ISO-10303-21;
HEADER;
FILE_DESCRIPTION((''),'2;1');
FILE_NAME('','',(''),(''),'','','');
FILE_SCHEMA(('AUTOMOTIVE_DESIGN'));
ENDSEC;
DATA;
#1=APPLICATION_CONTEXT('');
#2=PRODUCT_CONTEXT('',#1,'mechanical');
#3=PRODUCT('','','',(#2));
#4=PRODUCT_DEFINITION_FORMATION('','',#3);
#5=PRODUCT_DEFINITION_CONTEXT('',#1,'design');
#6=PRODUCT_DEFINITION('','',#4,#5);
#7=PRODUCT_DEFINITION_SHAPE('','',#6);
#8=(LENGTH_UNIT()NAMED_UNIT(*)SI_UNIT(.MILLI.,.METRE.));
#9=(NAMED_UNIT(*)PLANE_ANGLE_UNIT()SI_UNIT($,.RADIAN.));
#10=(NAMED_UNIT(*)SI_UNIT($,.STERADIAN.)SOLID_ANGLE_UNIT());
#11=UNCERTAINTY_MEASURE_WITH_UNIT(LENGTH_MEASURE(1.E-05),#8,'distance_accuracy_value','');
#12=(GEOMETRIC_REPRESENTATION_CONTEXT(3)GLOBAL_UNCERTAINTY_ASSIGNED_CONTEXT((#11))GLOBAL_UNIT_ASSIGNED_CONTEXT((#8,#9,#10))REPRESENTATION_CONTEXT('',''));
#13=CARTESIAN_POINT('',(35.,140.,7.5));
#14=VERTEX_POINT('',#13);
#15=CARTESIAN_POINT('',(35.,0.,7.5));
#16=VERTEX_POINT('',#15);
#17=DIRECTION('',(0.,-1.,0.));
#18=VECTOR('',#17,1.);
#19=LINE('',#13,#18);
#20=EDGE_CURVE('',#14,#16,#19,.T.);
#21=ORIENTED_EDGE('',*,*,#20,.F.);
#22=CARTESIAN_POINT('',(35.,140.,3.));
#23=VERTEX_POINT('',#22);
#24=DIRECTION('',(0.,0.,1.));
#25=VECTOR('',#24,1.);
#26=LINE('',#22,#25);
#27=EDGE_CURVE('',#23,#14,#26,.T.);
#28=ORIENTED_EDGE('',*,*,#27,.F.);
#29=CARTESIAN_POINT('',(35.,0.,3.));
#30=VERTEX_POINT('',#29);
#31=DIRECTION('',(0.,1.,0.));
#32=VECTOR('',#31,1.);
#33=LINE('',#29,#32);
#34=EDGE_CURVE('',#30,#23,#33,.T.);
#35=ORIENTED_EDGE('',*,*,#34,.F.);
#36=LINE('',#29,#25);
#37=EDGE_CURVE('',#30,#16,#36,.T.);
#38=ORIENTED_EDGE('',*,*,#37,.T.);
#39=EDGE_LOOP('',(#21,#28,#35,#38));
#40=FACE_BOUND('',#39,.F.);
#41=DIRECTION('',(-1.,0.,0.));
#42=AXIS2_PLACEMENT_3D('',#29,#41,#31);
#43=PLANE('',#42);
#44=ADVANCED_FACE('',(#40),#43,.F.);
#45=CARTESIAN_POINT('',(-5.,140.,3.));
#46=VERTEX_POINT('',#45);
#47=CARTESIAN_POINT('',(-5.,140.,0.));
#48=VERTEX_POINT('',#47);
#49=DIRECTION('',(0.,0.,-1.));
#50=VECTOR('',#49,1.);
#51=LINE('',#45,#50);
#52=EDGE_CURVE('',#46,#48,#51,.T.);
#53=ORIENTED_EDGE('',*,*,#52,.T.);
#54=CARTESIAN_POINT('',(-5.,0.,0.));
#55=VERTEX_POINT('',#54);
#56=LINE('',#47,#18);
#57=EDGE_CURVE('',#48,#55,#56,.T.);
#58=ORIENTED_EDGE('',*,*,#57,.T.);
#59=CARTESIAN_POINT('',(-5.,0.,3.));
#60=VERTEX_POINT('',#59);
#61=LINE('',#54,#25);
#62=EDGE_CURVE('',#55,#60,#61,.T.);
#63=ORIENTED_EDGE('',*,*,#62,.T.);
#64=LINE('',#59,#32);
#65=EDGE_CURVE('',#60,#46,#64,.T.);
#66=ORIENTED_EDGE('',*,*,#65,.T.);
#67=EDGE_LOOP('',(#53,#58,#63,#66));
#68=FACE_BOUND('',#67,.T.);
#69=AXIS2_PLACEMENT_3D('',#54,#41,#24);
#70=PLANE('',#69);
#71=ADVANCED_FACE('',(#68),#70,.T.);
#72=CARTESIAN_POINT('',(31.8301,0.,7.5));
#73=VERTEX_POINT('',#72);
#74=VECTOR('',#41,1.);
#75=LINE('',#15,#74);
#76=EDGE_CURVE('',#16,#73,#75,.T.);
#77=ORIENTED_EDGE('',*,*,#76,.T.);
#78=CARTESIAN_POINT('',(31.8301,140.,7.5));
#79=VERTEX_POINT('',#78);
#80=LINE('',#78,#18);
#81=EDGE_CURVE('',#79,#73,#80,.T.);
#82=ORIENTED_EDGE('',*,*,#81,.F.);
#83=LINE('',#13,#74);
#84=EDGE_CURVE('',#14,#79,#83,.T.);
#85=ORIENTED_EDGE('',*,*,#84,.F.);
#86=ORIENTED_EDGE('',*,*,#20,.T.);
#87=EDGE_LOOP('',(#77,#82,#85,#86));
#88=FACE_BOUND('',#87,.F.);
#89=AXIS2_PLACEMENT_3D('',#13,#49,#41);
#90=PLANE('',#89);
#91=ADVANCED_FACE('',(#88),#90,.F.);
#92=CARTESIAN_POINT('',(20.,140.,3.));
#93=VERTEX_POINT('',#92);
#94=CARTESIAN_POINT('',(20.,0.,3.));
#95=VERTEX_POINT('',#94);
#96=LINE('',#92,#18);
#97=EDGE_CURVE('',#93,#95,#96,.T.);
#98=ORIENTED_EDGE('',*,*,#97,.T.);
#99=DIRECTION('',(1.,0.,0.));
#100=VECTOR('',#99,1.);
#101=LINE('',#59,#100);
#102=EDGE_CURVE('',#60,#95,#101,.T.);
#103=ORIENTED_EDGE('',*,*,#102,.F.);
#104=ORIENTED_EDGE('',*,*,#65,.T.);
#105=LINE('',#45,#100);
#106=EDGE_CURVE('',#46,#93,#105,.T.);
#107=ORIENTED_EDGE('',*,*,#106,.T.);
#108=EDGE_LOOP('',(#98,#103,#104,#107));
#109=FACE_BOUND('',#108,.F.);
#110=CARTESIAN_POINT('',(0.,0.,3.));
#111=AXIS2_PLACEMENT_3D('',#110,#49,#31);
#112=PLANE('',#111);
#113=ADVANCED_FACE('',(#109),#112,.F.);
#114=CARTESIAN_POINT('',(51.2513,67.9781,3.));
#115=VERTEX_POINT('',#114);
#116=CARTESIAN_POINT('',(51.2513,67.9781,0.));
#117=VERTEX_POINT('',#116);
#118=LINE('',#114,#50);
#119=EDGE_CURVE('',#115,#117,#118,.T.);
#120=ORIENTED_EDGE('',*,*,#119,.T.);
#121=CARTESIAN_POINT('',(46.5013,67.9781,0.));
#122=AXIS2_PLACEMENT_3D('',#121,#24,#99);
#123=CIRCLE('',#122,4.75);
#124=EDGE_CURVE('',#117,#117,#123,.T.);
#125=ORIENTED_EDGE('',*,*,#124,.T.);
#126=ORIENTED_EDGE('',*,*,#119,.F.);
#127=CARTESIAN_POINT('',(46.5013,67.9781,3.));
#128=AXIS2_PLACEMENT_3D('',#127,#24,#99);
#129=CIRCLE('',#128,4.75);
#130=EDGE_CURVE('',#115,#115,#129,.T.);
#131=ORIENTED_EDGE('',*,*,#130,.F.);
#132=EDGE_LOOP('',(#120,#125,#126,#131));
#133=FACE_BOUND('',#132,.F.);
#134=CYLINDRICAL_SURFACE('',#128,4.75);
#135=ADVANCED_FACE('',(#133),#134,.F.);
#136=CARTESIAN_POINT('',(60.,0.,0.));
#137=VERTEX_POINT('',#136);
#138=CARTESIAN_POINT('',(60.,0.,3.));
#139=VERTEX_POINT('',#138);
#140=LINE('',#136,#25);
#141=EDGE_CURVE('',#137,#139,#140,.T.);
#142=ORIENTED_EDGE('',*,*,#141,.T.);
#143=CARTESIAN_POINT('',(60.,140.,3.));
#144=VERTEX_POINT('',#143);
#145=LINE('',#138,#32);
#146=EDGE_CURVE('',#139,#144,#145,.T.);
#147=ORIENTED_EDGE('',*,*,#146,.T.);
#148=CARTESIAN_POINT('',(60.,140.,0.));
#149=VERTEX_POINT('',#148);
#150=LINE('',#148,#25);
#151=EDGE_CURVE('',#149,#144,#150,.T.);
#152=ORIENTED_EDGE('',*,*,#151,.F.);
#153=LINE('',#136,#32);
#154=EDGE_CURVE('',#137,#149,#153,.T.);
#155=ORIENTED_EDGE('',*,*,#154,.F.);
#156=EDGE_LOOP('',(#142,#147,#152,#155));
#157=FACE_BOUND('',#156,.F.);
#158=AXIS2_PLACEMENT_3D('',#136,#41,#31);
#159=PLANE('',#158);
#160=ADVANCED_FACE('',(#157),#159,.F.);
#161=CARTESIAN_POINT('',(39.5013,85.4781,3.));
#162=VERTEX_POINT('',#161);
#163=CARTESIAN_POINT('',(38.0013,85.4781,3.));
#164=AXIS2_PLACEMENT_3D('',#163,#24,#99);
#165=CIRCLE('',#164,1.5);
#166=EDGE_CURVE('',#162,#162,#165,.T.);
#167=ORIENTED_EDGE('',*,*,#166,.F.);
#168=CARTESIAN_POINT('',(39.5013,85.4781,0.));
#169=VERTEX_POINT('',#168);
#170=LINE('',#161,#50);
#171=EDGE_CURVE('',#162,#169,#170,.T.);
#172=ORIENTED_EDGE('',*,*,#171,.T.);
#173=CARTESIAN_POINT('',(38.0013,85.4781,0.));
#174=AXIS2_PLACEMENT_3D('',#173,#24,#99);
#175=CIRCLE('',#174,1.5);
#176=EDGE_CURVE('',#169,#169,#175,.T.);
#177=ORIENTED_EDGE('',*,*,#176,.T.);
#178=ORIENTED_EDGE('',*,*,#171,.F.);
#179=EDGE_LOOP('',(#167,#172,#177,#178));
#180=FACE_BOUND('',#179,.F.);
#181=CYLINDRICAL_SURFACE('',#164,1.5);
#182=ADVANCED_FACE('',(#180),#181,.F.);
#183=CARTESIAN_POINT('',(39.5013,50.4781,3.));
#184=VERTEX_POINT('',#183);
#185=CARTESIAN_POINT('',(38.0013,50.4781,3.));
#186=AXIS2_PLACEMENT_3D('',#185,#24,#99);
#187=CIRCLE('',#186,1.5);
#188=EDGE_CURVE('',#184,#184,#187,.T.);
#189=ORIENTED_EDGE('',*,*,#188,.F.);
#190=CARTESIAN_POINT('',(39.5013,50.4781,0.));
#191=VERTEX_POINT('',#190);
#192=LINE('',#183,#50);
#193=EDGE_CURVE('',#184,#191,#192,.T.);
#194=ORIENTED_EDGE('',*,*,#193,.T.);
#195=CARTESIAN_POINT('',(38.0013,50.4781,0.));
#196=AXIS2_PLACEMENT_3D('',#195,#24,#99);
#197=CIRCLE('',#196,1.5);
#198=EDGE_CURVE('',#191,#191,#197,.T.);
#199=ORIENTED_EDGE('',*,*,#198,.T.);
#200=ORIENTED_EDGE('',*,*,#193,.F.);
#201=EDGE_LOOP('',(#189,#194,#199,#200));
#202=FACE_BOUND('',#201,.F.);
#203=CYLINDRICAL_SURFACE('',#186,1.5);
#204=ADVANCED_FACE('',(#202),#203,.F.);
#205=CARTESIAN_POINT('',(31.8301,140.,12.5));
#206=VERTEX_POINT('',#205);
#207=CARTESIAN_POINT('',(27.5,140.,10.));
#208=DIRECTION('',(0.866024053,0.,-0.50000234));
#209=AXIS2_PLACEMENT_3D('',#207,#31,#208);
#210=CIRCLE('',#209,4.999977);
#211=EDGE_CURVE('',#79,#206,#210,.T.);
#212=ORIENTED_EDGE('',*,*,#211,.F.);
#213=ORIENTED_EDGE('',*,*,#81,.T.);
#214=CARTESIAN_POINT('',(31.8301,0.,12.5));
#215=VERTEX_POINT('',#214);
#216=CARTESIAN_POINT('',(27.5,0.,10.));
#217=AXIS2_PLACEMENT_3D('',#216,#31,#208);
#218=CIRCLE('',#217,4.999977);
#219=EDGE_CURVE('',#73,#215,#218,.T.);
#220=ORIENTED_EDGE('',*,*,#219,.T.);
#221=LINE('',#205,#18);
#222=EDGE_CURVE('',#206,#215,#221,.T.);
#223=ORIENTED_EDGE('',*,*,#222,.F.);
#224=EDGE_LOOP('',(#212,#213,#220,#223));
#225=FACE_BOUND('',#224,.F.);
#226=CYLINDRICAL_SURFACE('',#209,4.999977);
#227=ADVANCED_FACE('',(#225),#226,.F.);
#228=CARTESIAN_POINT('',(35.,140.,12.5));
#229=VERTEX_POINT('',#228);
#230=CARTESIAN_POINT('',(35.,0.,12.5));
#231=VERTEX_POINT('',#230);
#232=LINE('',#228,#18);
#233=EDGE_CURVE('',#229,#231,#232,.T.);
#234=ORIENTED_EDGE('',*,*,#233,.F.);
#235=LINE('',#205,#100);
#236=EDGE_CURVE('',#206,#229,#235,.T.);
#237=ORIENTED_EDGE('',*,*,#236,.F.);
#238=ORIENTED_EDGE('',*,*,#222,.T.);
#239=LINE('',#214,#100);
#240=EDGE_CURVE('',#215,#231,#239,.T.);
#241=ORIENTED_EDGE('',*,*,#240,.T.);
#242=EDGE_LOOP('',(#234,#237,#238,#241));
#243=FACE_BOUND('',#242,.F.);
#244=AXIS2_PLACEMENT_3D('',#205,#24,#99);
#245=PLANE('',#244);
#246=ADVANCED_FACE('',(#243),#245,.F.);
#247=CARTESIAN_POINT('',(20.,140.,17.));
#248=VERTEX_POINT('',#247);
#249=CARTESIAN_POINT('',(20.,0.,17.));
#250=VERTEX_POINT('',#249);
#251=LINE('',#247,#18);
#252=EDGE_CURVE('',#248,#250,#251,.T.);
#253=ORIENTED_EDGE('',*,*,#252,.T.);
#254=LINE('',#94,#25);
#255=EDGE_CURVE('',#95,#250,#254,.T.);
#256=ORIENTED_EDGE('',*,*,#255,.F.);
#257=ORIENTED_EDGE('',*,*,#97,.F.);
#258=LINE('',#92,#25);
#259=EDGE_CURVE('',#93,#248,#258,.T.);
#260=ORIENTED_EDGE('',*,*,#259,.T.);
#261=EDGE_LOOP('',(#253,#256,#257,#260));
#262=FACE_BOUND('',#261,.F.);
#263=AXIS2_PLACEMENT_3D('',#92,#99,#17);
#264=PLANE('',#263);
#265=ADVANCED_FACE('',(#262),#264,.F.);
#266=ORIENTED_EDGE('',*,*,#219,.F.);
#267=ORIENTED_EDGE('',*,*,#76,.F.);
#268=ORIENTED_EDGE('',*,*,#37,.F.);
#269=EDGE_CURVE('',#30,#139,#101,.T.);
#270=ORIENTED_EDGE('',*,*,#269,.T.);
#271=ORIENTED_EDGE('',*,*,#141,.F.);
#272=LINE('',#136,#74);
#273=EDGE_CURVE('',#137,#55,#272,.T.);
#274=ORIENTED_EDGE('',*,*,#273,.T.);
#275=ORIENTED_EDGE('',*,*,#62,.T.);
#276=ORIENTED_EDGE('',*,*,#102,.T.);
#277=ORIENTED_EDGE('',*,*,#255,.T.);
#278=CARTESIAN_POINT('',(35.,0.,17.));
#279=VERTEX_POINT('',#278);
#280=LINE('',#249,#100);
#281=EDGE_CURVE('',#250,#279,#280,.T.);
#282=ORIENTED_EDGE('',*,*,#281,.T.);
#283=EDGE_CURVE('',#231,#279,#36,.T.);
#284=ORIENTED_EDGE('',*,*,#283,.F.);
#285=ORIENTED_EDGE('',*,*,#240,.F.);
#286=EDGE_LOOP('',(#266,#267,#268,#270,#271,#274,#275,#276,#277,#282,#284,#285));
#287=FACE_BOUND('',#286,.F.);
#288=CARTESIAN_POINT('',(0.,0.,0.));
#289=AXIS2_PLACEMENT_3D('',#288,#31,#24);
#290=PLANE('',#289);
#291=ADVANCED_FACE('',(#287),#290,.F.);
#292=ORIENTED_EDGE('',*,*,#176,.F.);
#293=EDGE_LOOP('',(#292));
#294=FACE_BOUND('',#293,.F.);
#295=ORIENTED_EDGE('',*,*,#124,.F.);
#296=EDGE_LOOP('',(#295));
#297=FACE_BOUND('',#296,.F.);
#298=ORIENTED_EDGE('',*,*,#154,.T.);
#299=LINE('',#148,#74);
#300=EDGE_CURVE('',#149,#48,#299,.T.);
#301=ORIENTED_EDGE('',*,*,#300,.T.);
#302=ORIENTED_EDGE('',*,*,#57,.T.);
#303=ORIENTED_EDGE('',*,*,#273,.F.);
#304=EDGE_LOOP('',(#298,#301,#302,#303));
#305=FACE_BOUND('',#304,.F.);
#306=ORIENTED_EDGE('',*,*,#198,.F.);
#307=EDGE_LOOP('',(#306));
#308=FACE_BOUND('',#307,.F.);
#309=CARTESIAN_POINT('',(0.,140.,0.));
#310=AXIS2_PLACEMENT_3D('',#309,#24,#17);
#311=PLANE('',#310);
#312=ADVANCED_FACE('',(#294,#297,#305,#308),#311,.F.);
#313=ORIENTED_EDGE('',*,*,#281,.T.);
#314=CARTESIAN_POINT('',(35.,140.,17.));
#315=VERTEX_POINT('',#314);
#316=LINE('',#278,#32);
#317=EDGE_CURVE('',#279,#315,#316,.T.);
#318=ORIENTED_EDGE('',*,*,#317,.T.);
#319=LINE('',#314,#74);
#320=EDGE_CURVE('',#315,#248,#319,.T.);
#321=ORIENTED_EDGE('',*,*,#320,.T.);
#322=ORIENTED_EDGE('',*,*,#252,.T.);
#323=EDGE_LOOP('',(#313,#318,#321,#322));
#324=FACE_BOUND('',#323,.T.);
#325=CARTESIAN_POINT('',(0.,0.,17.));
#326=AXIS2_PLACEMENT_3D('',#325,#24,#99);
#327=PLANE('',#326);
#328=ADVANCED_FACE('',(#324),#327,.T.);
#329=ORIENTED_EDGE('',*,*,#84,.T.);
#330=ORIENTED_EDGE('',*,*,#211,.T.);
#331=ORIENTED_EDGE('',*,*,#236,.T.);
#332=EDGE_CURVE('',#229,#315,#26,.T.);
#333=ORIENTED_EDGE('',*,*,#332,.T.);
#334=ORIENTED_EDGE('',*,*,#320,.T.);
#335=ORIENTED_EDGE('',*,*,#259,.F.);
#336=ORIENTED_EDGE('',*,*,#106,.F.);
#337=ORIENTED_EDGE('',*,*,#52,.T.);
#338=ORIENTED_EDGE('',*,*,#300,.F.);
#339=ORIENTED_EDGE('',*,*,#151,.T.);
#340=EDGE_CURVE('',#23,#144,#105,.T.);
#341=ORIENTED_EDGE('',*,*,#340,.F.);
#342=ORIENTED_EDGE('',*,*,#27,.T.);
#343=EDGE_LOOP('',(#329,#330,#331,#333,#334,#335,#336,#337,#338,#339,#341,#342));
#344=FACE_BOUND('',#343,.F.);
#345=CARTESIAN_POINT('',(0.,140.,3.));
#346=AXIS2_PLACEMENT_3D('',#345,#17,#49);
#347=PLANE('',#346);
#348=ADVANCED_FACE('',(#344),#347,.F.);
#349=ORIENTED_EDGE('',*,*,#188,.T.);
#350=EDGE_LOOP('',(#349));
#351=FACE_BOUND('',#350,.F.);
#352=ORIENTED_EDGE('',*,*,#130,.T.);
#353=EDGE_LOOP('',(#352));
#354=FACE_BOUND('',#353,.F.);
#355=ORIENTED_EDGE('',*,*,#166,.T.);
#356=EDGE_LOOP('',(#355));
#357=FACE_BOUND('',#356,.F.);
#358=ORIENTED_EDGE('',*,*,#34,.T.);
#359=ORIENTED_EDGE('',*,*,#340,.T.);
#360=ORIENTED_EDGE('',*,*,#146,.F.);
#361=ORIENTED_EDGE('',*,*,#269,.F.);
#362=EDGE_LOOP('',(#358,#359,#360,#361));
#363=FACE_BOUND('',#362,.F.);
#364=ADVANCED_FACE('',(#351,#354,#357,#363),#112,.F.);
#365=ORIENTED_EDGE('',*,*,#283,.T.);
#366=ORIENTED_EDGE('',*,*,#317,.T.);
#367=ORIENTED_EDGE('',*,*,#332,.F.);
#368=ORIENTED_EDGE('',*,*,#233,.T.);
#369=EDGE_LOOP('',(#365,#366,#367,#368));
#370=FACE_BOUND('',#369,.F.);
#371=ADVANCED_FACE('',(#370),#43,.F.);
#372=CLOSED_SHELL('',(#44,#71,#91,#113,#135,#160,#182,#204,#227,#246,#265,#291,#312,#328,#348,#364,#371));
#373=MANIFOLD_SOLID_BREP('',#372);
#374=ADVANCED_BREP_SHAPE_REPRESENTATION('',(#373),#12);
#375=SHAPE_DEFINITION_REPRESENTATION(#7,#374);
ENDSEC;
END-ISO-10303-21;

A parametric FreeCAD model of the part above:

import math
import FreeCAD as App
import Part
import Sketcher
Q = App.Units.Quantity

doc = App.newDocument("Part")
body = doc.addObject("PartDesign::Body", "Body")

# Sketch on XY plane
sketch1 = body.newObject("Sketcher::SketchObject", "Sketch")
sketch1.AttachmentSupport = (doc.getObject("XY_Plane"), [""])
sketch1.MapMode = "FlatFace"
sketch1.addGeometry(Part.LineSegment(App.Vector(0, 140, 0), App.Vector(0, 0, 0)), False)
sketch1.addGeometry(Part.LineSegment(App.Vector(0, 0, 0), App.Vector(60, 0, 0)), False)
sketch1.addGeometry(Part.LineSegment(App.Vector(60, 0, 0), App.Vector(60, 140, 0)), False)
sketch1.addGeometry(Part.LineSegment(App.Vector(60, 140, 0), App.Vector(0, 140, 0)), False)
sketch1.addConstraint(Sketcher.Constraint("Coincident", 0, 2, 1, 1))
sketch1.addConstraint(Sketcher.Constraint("Coincident", 1, 2, 2, 1))
sketch1.addConstraint(Sketcher.Constraint("Coincident", 2, 2, 3, 1))
sketch1.addConstraint(Sketcher.Constraint("Coincident", 3, 2, 0, 1))
sketch1.addConstraint(Sketcher.Constraint("Vertical", 0))
sketch1.addConstraint(Sketcher.Constraint("Horizontal", 1))
sketch1.addConstraint(Sketcher.Constraint("Vertical", 2))
sketch1.addConstraint(Sketcher.Constraint("Horizontal", 3))
sketch1.addConstraint(Sketcher.Constraint("Coincident", 0, 2, -1, 1))
sketch1.addConstraint(Sketcher.Constraint("DistanceX", 1, 1, 1, 2, Q("60 mm")))
sketch1.addConstraint(Sketcher.Constraint("DistanceY", 0, 2, 0, 1, Q("140 mm")))
pad1 = body.newObject("PartDesign::Pad", "Pad")
pad1.Profile = sketch1
pad1.Length = 3

# Sketch on XY plane
sketch2 = body.newObject("Sketcher::SketchObject", "Sketch001")
sketch2.AttachmentSupport = (doc.getObject("XY_Plane"), [""])
sketch2.MapMode = "FlatFace"
sketch2.AttachmentOffset = App.Placement(App.Vector(0, 0, 3), App.Rotation())
sketch2.addGeometry(Part.Circle(App.Vector(38, 85.5, 0), App.Vector(0, 0, 1), 1.5), False)
sketch2.addGeometry(Part.Circle(App.Vector(38, 50.5, 0), App.Vector(0, 0, 1), 1.5), False)
sketch2.addGeometry(Part.Circle(App.Vector(46.5, 68, 0), App.Vector(0, 0, 1), 4.8), False)
sketch2.addConstraint(Sketcher.Constraint("Equal", 0, 1))
sketch2.addConstraint(Sketcher.Constraint("Vertical", 0, 3, 1, 3))
sketch2.addConstraint(Sketcher.Constraint("Diameter", 0, Q("3 mm")))
sketch2.addConstraint(Sketcher.Constraint("Diameter", 2, Q("9.5 mm")))
sketch2.addConstraint(Sketcher.Constraint("DistanceY", 1, 3, 0, 3, Q("35 mm")))
sketch2.addConstraint(Sketcher.Constraint("DistanceX", 0, 3, 2, 3, Q("8.5 mm")))
sketch2.addConstraint(Sketcher.Constraint("DistanceY", 2, 3, 0, 3, Q("17.5 mm")))
sketch2.addConstraint(Sketcher.Constraint("DistanceY", -1, 1, 0, 3, Q("85.478 mm")))
sketch2.addConstraint(Sketcher.Constraint("DistanceX", -1, 1, 0, 3, Q("38.0013 mm")))
pocket1 = body.newObject("PartDesign::Pocket", "Pocket")
pocket1.Profile = sketch2
pocket1.Length = 145

# Sketch on YZ plane
sketch3 = body.newObject("Sketcher::SketchObject", "Sketch002")
sketch3.AttachmentSupport = (doc.getObject("YZ_Plane"), [""])
sketch3.MapMode = "FlatFace"
sketch3.addGeometry(Part.LineSegment(App.Vector(140, 3, 0), App.Vector(140, 0, 0)), False)
sketch3.addGeometry(Part.LineSegment(App.Vector(140, 0, 0), App.Vector(0, 0, 0)), False)
sketch3.addGeometry(Part.LineSegment(App.Vector(0, 0, 0), App.Vector(0, 3, 0)), False)
sketch3.addGeometry(Part.LineSegment(App.Vector(0, 3, 0), App.Vector(140, 3, 0)), False)
sketch3.addConstraint(Sketcher.Constraint("Coincident", 0, 2, 1, 1))
sketch3.addConstraint(Sketcher.Constraint("Coincident", 1, 2, 2, 1))
sketch3.addConstraint(Sketcher.Constraint("Coincident", 2, 2, 3, 1))
sketch3.addConstraint(Sketcher.Constraint("Coincident", 3, 2, 0, 1))
sketch3.addConstraint(Sketcher.Constraint("Vertical", 0))
sketch3.addConstraint(Sketcher.Constraint("Horizontal", 1))
sketch3.addConstraint(Sketcher.Constraint("Vertical", 2))
sketch3.addConstraint(Sketcher.Constraint("Horizontal", 3))
sketch3.addConstraint(Sketcher.Constraint("Coincident", 1, 2, -1, 1))
sketch3.addConstraint(Sketcher.Constraint("DistanceX", 1, 2, 1, 1, Q("140 mm")))
sketch3.addConstraint(Sketcher.Constraint("DistanceY", 0, 2, 0, 1, Q("3 mm")))
pad2 = body.newObject("PartDesign::Pad", "Pad001")
pad2.Profile = sketch3
pad2.Length = 5
pad2.Reversed = True

# Sketch on XY plane
sketch4 = body.newObject("Sketcher::SketchObject", "Sketch003")
sketch4.AttachmentSupport = (doc.getObject("XY_Plane"), [""])
sketch4.MapMode = "FlatFace"
sketch4.AttachmentOffset = App.Placement(App.Vector(0, 0, 3), App.Rotation())
sketch4.addGeometry(Part.LineSegment(App.Vector(20, 0, 0), App.Vector(35, 0, 0)), False)
sketch4.addGeometry(Part.LineSegment(App.Vector(35, 0, 0), App.Vector(35, 140, 0)), False)
sketch4.addGeometry(Part.LineSegment(App.Vector(35, 140, 0), App.Vector(20, 140, 0)), False)
sketch4.addGeometry(Part.LineSegment(App.Vector(20, 140, 0), App.Vector(20, 0, 0)), False)
sketch4.addConstraint(Sketcher.Constraint("Coincident", 0, 2, 1, 1))
sketch4.addConstraint(Sketcher.Constraint("Coincident", 1, 2, 2, 1))
sketch4.addConstraint(Sketcher.Constraint("Coincident", 2, 2, 3, 1))
sketch4.addConstraint(Sketcher.Constraint("Coincident", 3, 2, 0, 1))
sketch4.addConstraint(Sketcher.Constraint("Horizontal", 0))
sketch4.addConstraint(Sketcher.Constraint("Vertical", 1))
sketch4.addConstraint(Sketcher.Constraint("Horizontal", 2))
sketch4.addConstraint(Sketcher.Constraint("Vertical", 3))
sketch4.addConstraint(Sketcher.Constraint("PointOnObject", 0, 2, -1))
sketch4.addConstraint(Sketcher.Constraint("DistanceX", 0, 1, 0, 2, Q("15 mm")))
sketch4.addConstraint(Sketcher.Constraint("DistanceY", 1, 1, 1, 2, Q("140 mm")))
sketch4.addConstraint(Sketcher.Constraint("DistanceX", -1, 1, 0, 2, Q("35 mm")))
pad3 = body.newObject("PartDesign::Pad", "Pad002")
pad3.Profile = sketch4
pad3.Length = 14

# Sketch on XZ plane
sketch5 = body.newObject("Sketcher::SketchObject", "Sketch004")
sketch5.AttachmentSupport = (doc.getObject("XZ_Plane"), [""])
sketch5.MapMode = "FlatFace"
sketch5.AttachmentOffset = App.Placement(App.Vector(0, 0, -140), App.Rotation())
sketch5.addGeometry(Part.LineSegment(App.Vector(35, 7.5, 0), App.Vector(31.8, 7.5, 0)), False)
sketch5.addGeometry(Part.ArcOfCircle(Part.Circle(App.Vector(27.5, 10, 0), App.Vector(0, 0, 1), 5), math.radians(30), math.radians(330)), False)
sketch5.addGeometry(Part.LineSegment(App.Vector(31.8, 12.5, 0), App.Vector(35, 12.5, 0)), False)
sketch5.addGeometry(Part.LineSegment(App.Vector(35, 12.5, 0), App.Vector(35, 7.5, 0)), False)
sketch5.addConstraint(Sketcher.Constraint("Coincident", 0, 2, 1, 2))
sketch5.addConstraint(Sketcher.Constraint("Coincident", 1, 1, 2, 1))
sketch5.addConstraint(Sketcher.Constraint("Coincident", 2, 2, 3, 1))
sketch5.addConstraint(Sketcher.Constraint("Coincident", 3, 2, 0, 1))
sketch5.addConstraint(Sketcher.Constraint("Horizontal", 0))
sketch5.addConstraint(Sketcher.Constraint("Horizontal", 2))
sketch5.addConstraint(Sketcher.Constraint("Vertical", 3))
sketch5.addConstraint(Sketcher.Constraint("Vertical", 0, 2, 1, 1))
sketch5.addConstraint(Sketcher.Constraint("Radius", 1, Q("5 mm")))
sketch5.addConstraint(Sketcher.Constraint("DistanceY", 3, 2, 3, 1, Q("5 mm")))
sketch5.addConstraint(Sketcher.Constraint("DistanceY", -1, 1, 1, 3, Q("10 mm")))
sketch5.addConstraint(Sketcher.Constraint("DistanceX", -1, 1, 2, 2, Q("35 mm")))
sketch5.addConstraint(Sketcher.Constraint("DistanceX", 0, 2, 0, 1, Q("3.17 mm")))
pocket2 = body.newObject("PartDesign::Pocket", "Pocket001")
pocket2.Profile = sketch5
pocket2.Length = 140
pocket2.Reversed = True

doc.recompute()
